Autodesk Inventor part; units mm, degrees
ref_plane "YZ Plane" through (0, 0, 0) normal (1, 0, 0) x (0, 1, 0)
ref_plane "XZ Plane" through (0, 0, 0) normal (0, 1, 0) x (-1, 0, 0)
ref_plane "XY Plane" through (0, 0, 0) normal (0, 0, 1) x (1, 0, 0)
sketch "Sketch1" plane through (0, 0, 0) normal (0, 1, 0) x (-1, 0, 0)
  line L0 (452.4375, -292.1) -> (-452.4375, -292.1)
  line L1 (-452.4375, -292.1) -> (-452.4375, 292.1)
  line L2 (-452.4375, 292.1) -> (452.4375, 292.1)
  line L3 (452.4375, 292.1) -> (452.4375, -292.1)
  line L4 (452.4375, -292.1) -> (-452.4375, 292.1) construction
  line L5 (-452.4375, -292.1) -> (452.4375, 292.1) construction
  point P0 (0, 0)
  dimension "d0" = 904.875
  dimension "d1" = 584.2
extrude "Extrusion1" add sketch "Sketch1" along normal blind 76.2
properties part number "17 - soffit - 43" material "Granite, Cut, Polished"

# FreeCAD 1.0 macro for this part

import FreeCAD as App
import Part
import Sketcher

V = App.Vector
Q = App.Units.Quantity


def add_polygon(sketch, points):
    """Adds a closed chain of lines whose ends are joined by coincident constraints."""
    first, n = sketch.GeometryCount, len(points)
    for a, b in zip(points, points[1:] + points[:1]):
        sketch.addGeometry(Part.LineSegment(App.Vector(*a, 0), App.Vector(*b, 0)), False)
    for i in range(n):
        sketch.addConstraint(Sketcher.Constraint("Coincident", first + i, 2, first + (i + 1) % n, 1))

doc = App.newDocument("Part")
params = doc.addObject("Spreadsheet::Sheet", "Params")
for row, (alias, value) in enumerate([
    ("sketch1_height", "23 in"),
    ("sketch1_width", "35.625 in"),
    ("pad1_length", "3 in"),
], start=1):
    params.set(f"A{row}", alias)
    params.set(f"B{row}", "=" + value)
    params.setAlias(f"B{row}", alias)

body = doc.addObject("PartDesign::Body", "Body")

# Sketch on XZ plane
sketch1 = body.newObject("Sketcher::SketchObject", "Sketch")
sketch1.AttachmentSupport = (doc.getObject("XZ_Plane"), [""])
sketch1.MapMode = "FlatFace"
add_polygon(sketch1, [(452, -292), (-452, -292), (-452, 292), (452, 292)])  # lines 0-3
sketch1.addConstraint([
    Sketcher.Constraint("Horizontal", 0),
    Sketcher.Constraint("Vertical", 1),
    Sketcher.Constraint("Horizontal", 2),
    Sketcher.Constraint("Vertical", 3),
    Sketcher.Constraint("Symmetric", 0, 2, 2, 2, -1, 1),
    Sketcher.Constraint("DistanceY", 1, 1, 1, 2, Q("23 in")),
    Sketcher.Constraint("DistanceX", 0, 2, 0, 1, Q("35.625 in")),
])
sketch1.setExpression("Constraints[9]", "Params.sketch1_height")
sketch1.setExpression("Constraints[10]", "Params.sketch1_width")
pad1 = body.newObject("PartDesign::Pad", "Pad")
pad1.Profile = sketch1
pad1.setExpression("Length", "Params.pad1_length")
pad1.Reversed = True

doc.recompute()
